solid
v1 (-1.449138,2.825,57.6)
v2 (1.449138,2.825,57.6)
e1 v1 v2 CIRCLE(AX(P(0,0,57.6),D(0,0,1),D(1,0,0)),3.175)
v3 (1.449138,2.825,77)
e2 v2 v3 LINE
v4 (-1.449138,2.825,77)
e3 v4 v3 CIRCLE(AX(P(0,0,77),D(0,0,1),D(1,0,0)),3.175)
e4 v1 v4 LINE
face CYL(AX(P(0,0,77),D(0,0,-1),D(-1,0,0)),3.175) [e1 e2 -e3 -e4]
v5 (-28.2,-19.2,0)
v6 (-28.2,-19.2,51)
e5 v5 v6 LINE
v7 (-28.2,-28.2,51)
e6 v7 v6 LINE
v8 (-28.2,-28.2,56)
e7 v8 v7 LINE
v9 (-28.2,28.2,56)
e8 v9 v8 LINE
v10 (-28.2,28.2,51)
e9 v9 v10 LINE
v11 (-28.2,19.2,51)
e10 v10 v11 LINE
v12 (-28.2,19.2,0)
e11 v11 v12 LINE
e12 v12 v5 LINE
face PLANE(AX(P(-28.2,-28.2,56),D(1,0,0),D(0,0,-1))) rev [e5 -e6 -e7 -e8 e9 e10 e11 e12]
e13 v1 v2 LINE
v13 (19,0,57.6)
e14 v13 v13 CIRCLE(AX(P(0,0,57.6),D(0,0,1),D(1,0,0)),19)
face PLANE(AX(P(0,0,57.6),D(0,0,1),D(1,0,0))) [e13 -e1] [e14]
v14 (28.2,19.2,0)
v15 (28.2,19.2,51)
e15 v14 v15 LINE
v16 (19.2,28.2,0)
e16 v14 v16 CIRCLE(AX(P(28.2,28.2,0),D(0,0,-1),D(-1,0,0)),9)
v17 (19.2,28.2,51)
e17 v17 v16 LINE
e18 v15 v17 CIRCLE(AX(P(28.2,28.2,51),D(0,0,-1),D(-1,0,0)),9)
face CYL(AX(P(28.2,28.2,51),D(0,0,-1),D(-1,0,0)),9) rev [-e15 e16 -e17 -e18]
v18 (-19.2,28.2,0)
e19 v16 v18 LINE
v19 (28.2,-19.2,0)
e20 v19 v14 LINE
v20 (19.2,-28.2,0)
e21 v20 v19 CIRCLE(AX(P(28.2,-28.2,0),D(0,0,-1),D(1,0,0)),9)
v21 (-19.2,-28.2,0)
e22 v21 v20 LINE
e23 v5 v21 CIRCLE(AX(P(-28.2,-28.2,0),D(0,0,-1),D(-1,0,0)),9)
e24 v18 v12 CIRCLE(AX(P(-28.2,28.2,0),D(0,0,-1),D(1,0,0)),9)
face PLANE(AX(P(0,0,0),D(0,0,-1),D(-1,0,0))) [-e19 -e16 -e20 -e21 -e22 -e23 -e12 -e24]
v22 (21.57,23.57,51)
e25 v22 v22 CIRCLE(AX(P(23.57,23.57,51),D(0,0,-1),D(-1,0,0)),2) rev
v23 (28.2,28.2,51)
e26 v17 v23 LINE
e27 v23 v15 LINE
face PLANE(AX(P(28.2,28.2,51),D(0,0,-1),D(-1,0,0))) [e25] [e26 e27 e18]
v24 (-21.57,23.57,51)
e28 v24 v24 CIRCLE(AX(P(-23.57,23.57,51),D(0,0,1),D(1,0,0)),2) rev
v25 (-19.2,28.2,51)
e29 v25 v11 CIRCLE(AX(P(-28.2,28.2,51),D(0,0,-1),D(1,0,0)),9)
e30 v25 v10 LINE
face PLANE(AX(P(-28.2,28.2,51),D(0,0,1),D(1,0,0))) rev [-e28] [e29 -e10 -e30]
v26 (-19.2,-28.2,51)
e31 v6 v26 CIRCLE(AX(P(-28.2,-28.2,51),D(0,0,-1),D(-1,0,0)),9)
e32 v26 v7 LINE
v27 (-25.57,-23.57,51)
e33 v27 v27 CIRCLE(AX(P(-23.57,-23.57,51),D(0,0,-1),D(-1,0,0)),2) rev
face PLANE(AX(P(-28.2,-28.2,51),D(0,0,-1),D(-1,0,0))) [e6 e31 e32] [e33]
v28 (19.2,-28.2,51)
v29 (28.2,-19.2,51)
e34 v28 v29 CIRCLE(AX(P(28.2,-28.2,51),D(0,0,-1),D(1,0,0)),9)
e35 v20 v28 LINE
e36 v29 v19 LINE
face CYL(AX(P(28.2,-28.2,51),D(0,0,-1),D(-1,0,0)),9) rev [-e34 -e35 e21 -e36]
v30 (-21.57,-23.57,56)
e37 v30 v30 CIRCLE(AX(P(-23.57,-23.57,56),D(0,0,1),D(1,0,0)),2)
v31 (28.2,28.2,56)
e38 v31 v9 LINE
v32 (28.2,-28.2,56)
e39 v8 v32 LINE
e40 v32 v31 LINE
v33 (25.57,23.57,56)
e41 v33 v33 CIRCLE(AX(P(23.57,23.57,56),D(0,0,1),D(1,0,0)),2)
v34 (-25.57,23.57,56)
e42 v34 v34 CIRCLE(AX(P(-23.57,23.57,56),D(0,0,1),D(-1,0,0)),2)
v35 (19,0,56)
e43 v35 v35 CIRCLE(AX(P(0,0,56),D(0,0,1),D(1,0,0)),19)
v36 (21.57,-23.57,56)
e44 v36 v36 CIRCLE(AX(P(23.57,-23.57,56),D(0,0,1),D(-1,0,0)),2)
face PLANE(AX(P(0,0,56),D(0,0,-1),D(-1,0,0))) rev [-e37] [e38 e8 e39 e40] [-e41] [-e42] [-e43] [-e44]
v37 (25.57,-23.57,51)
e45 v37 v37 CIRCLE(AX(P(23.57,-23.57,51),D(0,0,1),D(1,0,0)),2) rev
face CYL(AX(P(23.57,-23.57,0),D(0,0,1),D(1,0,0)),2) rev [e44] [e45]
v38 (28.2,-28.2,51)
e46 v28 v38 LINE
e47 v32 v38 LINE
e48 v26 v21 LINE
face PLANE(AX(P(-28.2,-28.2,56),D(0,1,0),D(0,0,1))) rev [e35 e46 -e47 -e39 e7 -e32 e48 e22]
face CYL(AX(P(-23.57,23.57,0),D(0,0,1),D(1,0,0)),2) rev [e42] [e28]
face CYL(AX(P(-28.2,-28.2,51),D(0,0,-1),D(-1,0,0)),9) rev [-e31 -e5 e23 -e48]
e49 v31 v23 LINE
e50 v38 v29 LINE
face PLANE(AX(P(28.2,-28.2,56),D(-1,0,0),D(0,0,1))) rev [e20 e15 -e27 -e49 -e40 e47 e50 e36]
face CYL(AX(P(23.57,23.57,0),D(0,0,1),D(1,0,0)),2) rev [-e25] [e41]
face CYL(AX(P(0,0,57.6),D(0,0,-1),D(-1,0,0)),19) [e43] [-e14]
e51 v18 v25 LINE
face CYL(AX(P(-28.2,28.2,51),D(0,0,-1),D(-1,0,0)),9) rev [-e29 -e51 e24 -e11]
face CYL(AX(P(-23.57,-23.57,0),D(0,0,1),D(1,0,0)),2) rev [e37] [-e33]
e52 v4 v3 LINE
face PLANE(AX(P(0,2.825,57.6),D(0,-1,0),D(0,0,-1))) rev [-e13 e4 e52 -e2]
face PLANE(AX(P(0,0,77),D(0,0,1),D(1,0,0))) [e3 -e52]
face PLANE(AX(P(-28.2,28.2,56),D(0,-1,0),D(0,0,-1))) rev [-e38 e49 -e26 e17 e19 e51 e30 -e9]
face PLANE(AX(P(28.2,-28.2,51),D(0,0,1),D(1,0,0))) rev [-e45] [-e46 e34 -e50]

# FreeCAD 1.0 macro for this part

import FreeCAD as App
import Part
import Sketcher

doc = App.newDocument("Part")
body = doc.addObject("PartDesign::Body", "Body")

# Sketch on XY plane
sketch1 = body.newObject("Sketcher::SketchObject", "Sketch")
sketch1.AttachmentSupport = (doc.getObject("XY_Plane"), [""])
sketch1.MapMode = "FlatFace"
sketch1.addGeometry(Part.LineSegment(App.Vector(-28.2, 28.2, 0), App.Vector(-28.2, -28.2, 0)), False)
sketch1.addGeometry(Part.LineSegment(App.Vector(-28.2, -28.2, 0), App.Vector(28.2, -28.2, 0)), False)
sketch1.addGeometry(Part.LineSegment(App.Vector(28.2, -28.2, 0), App.Vector(28.2, 28.2, 0)), False)
sketch1.addGeometry(Part.LineSegment(App.Vector(28.2, 28.2, 0), App.Vector(-28.2, 28.2, 0)), False)
sketch1.addConstraint(Sketcher.Constraint("Coincident", 0, 2, 1, 1))
sketch1.addConstraint(Sketcher.Constraint("Coincident", 1, 2, 2, 1))
sketch1.addConstraint(Sketcher.Constraint("Coincident", 2, 2, 3, 1))
sketch1.addConstraint(Sketcher.Constraint("Coincident", 3, 2, 0, 1))
sketch1.addConstraint(Sketcher.Constraint("Vertical", 0))
sketch1.addConstraint(Sketcher.Constraint("Horizontal", 1))
sketch1.addConstraint(Sketcher.Constraint("Vertical", 2))
sketch1.addConstraint(Sketcher.Constraint("Horizontal", 3))
sketch1.addConstraint(Sketcher.Constraint("Symmetric", 0, 2, 2, 2, -1, 1))
sketch1.addConstraint(Sketcher.Constraint("Equal", 3, 0))
sketch1.addConstraint(Sketcher.Constraint("DistanceX", 1, 1, 1, 2, 56.4))
pad1 = body.newObject("PartDesign::Pad", "Pad")
pad1.Profile = sketch1
pad1.Length = 56

# Sketch on XY plane
sketch2 = body.newObject("Sketcher::SketchObject", "Sketch001")
sketch2.AttachmentSupport = (doc.getObject("XY_Plane"), [""])
sketch2.MapMode = "FlatFace"
sketch2.AttachmentOffset = App.Placement(App.Vector(0, 0, 56), App.Rotation())
sketch2.addGeometry(Part.Circle(App.Vector(0, 0, 0), App.Vector(0, 0, 1), 19), False)
sketch2.addConstraint(Sketcher.Constraint("Coincident", 0, 3, -1, 1))
sketch2.addConstraint(Sketcher.Constraint("Diameter", 0, 38.0))
pad2 = body.newObject("PartDesign::Pad", "Pad001")
pad2.Profile = sketch2
pad2.Length = 1.6

# Sketch on XY plane
sketch3 = body.newObject("Sketcher::SketchObject", "Sketch002")
sketch3.AttachmentSupport = (doc.getObject("XY_Plane"), [""])
sketch3.MapMode = "FlatFace"
sketch3.AttachmentOffset = App.Placement(App.Vector(0, 0, 57.6), App.Rotation())
sketch3.addGeometry(Part.Circle(App.Vector(0, 0, 0), App.Vector(0, 0, 1), 3.175), False)
sketch3.addConstraint(Sketcher.Constraint("Coincident", 0, 3, -1, 1))
sketch3.addConstraint(Sketcher.Constraint("Diameter", 0, 6.35))
pad3 = body.newObject("PartDesign::Pad", "Pad002")
pad3.Profile = sketch3
pad3.Length = 19.4

# Sketch on XY plane
sketch4 = body.newObject("Sketcher::SketchObject", "Sketch003")
sketch4.AttachmentSupport = (doc.getObject("XY_Plane"), [""])
sketch4.MapMode = "FlatFace"
sketch4.AttachmentOffset = App.Placement(App.Vector(0, 0, 77), App.Rotation())
sketch4.addGeometry(Part.LineSegment(App.Vector(-97.277385, 2.825, 0), App.Vector(97.277385, 2.825, 0)), False)
sketch4.addGeometry(Part.LineSegment(App.Vector(97.277385, 2.825, 0), App.Vector(97.277385, 194.481494, 0)), False)
sketch4.addGeometry(Part.LineSegment(App.Vector(97.277385, 194.481494, 0), App.Vector(-97.277385, 194.481494, 0)), False)
sketch4.addGeometry(Part.LineSegment(App.Vector(-97.277385, 194.481494, 0), App.Vector(-97.277385, 2.825, 0)), False)
sketch4.addConstraint(Sketcher.Constraint("Coincident", 0, 2, 1, 1))
sketch4.addConstraint(Sketcher.Constraint("Coincident", 1, 2, 2, 1))
sketch4.addConstraint(Sketcher.Constraint("Coincident", 2, 2, 3, 1))
sketch4.addConstraint(Sketcher.Constraint("Coincident", 3, 2, 0, 1))
sketch4.addConstraint(Sketcher.Constraint("Horizontal", 0))
sketch4.addConstraint(Sketcher.Constraint("Vertical", 1))
sketch4.addConstraint(Sketcher.Constraint("Horizontal", 2))
sketch4.addConstraint(Sketcher.Constraint("Vertical", 3))
sketch4.addConstraint(Sketcher.Constraint("DistanceY", -1, 1, 0, 2, 2.825))
sketch4.addConstraint(Sketcher.Constraint("DistanceX", 0, 1, 0, 2, 194.554769))
sketch4.addConstraint(Sketcher.Constraint("DistanceY", 1, 1, 1, 2, 191.656494))
sketch4.addConstraint(Sketcher.Constraint("DistanceX", -1, 1, 0, 2, 97.277385))
pocket1 = body.newObject("PartDesign::Pocket", "Pocket")
pocket1.Profile = sketch4
pocket1.Length = 19.4

# Sketch on XY plane
sketch5 = body.newObject("Sketcher::SketchObject", "Sketch004")
sketch5.AttachmentSupport = (doc.getObject("XY_Plane"), [""])
sketch5.MapMode = "FlatFace"
sketch5.AttachmentOffset = App.Placement(App.Vector(0, 0, 56), App.Rotation())
sketch5.addGeometry(Part.Circle(App.Vector(23.57, 23.57, 0), App.Vector(0, 0, 1), 2), False)
sketch5.addGeometry(Part.Circle(App.Vector(-23.57, 23.57, 0), App.Vector(0, 0, 1), 2), False)
sketch5.addGeometry(Part.Circle(App.Vector(23.57, -23.57, 0), App.Vector(0, 0, 1), 2), False)
sketch5.addGeometry(Part.Circle(App.Vector(-23.57, -23.57, 0), App.Vector(0, 0, 1), 2), False)
sketch5.addConstraint(Sketcher.Constraint("Equal", 0, 1))
sketch5.addConstraint(Sketcher.Constraint("Equal", 1, 2))
sketch5.addConstraint(Sketcher.Constraint("Equal", 2, 3))
sketch5.addConstraint(Sketcher.Constraint("Symmetric", 1, 3, 2, 3, -1, 1))
sketch5.addConstraint(Sketcher.Constraint("Symmetric", 0, 3, 3, 3, -1, 1))
sketch5.addConstraint(Sketcher.Constraint("Symmetric", 0, 3, 1, 3, -2))
sketch5.addConstraint(Sketcher.Constraint("Diameter", 0, 4.0))
sketch5.addConstraint(Sketcher.Constraint("DistanceX", -1, 1, 0, 3, 23.57))
sketch5.addConstraint(Sketcher.Constraint("DistanceY", -1, 1, 0, 3, 23.57))
pocket2 = body.newObject("PartDesign::Pocket", "Pocket001")
pocket2.Profile = sketch5
pocket2.Type = "ThroughAll"

# Sketch on XY plane
sketch6 = body.newObject("Sketcher::SketchObject", "Sketch005")
sketch6.AttachmentSupport = (doc.getObject("XY_Plane"), [""])
sketch6.MapMode = "FlatFace"
sketch6.addGeometry(Part.Circle(App.Vector(28.2, 28.2, 0), App.Vector(0, 0, 1), 9), False)
sketch6.addGeometry(Part.Circle(App.Vector(28.2, -28.2, 0), App.Vector(0, 0, 1), 9), False)
sketch6.addGeometry(Part.Circle(App.Vector(-28.2, -28.2, 0), App.Vector(0, 0, 1), 9), False)
sketch6.addGeometry(Part.Circle(App.Vector(-28.2, 28.2, 0), App.Vector(0, 0, 1), 9), False)
sketch6.addConstraint(Sketcher.Constraint("Equal", 0, 1))
sketch6.addConstraint(Sketcher.Constraint("Equal", 1, 2))
sketch6.addConstraint(Sketcher.Constraint("Equal", 2, 3))
sketch6.addConstraint(Sketcher.Constraint("Symmetric", 0, 3, 2, 3, -1, 1))
sketch6.addConstraint(Sketcher.Constraint("Symmetric", 1, 3, 3, 3, -1, 1))
sketch6.addConstraint(Sketcher.Constraint("Symmetric", 1, 3, 2, 3, -2))
sketch6.addConstraint(Sketcher.Constraint("Diameter", 0, 18.0))
sketch6.addConstraint(Sketcher.Constraint("DistanceX", -1, 1, 0, 3, 28.2))
sketch6.addConstraint(Sketcher.Constraint("DistanceY", -1, 1, 0, 3, 28.2))
pocket3 = body.newObject("PartDesign::Pocket", "Pocket002")
pocket3.Profile = sketch6
pocket3.Length = 51
pocket3.Reversed = True

doc.recompute()
